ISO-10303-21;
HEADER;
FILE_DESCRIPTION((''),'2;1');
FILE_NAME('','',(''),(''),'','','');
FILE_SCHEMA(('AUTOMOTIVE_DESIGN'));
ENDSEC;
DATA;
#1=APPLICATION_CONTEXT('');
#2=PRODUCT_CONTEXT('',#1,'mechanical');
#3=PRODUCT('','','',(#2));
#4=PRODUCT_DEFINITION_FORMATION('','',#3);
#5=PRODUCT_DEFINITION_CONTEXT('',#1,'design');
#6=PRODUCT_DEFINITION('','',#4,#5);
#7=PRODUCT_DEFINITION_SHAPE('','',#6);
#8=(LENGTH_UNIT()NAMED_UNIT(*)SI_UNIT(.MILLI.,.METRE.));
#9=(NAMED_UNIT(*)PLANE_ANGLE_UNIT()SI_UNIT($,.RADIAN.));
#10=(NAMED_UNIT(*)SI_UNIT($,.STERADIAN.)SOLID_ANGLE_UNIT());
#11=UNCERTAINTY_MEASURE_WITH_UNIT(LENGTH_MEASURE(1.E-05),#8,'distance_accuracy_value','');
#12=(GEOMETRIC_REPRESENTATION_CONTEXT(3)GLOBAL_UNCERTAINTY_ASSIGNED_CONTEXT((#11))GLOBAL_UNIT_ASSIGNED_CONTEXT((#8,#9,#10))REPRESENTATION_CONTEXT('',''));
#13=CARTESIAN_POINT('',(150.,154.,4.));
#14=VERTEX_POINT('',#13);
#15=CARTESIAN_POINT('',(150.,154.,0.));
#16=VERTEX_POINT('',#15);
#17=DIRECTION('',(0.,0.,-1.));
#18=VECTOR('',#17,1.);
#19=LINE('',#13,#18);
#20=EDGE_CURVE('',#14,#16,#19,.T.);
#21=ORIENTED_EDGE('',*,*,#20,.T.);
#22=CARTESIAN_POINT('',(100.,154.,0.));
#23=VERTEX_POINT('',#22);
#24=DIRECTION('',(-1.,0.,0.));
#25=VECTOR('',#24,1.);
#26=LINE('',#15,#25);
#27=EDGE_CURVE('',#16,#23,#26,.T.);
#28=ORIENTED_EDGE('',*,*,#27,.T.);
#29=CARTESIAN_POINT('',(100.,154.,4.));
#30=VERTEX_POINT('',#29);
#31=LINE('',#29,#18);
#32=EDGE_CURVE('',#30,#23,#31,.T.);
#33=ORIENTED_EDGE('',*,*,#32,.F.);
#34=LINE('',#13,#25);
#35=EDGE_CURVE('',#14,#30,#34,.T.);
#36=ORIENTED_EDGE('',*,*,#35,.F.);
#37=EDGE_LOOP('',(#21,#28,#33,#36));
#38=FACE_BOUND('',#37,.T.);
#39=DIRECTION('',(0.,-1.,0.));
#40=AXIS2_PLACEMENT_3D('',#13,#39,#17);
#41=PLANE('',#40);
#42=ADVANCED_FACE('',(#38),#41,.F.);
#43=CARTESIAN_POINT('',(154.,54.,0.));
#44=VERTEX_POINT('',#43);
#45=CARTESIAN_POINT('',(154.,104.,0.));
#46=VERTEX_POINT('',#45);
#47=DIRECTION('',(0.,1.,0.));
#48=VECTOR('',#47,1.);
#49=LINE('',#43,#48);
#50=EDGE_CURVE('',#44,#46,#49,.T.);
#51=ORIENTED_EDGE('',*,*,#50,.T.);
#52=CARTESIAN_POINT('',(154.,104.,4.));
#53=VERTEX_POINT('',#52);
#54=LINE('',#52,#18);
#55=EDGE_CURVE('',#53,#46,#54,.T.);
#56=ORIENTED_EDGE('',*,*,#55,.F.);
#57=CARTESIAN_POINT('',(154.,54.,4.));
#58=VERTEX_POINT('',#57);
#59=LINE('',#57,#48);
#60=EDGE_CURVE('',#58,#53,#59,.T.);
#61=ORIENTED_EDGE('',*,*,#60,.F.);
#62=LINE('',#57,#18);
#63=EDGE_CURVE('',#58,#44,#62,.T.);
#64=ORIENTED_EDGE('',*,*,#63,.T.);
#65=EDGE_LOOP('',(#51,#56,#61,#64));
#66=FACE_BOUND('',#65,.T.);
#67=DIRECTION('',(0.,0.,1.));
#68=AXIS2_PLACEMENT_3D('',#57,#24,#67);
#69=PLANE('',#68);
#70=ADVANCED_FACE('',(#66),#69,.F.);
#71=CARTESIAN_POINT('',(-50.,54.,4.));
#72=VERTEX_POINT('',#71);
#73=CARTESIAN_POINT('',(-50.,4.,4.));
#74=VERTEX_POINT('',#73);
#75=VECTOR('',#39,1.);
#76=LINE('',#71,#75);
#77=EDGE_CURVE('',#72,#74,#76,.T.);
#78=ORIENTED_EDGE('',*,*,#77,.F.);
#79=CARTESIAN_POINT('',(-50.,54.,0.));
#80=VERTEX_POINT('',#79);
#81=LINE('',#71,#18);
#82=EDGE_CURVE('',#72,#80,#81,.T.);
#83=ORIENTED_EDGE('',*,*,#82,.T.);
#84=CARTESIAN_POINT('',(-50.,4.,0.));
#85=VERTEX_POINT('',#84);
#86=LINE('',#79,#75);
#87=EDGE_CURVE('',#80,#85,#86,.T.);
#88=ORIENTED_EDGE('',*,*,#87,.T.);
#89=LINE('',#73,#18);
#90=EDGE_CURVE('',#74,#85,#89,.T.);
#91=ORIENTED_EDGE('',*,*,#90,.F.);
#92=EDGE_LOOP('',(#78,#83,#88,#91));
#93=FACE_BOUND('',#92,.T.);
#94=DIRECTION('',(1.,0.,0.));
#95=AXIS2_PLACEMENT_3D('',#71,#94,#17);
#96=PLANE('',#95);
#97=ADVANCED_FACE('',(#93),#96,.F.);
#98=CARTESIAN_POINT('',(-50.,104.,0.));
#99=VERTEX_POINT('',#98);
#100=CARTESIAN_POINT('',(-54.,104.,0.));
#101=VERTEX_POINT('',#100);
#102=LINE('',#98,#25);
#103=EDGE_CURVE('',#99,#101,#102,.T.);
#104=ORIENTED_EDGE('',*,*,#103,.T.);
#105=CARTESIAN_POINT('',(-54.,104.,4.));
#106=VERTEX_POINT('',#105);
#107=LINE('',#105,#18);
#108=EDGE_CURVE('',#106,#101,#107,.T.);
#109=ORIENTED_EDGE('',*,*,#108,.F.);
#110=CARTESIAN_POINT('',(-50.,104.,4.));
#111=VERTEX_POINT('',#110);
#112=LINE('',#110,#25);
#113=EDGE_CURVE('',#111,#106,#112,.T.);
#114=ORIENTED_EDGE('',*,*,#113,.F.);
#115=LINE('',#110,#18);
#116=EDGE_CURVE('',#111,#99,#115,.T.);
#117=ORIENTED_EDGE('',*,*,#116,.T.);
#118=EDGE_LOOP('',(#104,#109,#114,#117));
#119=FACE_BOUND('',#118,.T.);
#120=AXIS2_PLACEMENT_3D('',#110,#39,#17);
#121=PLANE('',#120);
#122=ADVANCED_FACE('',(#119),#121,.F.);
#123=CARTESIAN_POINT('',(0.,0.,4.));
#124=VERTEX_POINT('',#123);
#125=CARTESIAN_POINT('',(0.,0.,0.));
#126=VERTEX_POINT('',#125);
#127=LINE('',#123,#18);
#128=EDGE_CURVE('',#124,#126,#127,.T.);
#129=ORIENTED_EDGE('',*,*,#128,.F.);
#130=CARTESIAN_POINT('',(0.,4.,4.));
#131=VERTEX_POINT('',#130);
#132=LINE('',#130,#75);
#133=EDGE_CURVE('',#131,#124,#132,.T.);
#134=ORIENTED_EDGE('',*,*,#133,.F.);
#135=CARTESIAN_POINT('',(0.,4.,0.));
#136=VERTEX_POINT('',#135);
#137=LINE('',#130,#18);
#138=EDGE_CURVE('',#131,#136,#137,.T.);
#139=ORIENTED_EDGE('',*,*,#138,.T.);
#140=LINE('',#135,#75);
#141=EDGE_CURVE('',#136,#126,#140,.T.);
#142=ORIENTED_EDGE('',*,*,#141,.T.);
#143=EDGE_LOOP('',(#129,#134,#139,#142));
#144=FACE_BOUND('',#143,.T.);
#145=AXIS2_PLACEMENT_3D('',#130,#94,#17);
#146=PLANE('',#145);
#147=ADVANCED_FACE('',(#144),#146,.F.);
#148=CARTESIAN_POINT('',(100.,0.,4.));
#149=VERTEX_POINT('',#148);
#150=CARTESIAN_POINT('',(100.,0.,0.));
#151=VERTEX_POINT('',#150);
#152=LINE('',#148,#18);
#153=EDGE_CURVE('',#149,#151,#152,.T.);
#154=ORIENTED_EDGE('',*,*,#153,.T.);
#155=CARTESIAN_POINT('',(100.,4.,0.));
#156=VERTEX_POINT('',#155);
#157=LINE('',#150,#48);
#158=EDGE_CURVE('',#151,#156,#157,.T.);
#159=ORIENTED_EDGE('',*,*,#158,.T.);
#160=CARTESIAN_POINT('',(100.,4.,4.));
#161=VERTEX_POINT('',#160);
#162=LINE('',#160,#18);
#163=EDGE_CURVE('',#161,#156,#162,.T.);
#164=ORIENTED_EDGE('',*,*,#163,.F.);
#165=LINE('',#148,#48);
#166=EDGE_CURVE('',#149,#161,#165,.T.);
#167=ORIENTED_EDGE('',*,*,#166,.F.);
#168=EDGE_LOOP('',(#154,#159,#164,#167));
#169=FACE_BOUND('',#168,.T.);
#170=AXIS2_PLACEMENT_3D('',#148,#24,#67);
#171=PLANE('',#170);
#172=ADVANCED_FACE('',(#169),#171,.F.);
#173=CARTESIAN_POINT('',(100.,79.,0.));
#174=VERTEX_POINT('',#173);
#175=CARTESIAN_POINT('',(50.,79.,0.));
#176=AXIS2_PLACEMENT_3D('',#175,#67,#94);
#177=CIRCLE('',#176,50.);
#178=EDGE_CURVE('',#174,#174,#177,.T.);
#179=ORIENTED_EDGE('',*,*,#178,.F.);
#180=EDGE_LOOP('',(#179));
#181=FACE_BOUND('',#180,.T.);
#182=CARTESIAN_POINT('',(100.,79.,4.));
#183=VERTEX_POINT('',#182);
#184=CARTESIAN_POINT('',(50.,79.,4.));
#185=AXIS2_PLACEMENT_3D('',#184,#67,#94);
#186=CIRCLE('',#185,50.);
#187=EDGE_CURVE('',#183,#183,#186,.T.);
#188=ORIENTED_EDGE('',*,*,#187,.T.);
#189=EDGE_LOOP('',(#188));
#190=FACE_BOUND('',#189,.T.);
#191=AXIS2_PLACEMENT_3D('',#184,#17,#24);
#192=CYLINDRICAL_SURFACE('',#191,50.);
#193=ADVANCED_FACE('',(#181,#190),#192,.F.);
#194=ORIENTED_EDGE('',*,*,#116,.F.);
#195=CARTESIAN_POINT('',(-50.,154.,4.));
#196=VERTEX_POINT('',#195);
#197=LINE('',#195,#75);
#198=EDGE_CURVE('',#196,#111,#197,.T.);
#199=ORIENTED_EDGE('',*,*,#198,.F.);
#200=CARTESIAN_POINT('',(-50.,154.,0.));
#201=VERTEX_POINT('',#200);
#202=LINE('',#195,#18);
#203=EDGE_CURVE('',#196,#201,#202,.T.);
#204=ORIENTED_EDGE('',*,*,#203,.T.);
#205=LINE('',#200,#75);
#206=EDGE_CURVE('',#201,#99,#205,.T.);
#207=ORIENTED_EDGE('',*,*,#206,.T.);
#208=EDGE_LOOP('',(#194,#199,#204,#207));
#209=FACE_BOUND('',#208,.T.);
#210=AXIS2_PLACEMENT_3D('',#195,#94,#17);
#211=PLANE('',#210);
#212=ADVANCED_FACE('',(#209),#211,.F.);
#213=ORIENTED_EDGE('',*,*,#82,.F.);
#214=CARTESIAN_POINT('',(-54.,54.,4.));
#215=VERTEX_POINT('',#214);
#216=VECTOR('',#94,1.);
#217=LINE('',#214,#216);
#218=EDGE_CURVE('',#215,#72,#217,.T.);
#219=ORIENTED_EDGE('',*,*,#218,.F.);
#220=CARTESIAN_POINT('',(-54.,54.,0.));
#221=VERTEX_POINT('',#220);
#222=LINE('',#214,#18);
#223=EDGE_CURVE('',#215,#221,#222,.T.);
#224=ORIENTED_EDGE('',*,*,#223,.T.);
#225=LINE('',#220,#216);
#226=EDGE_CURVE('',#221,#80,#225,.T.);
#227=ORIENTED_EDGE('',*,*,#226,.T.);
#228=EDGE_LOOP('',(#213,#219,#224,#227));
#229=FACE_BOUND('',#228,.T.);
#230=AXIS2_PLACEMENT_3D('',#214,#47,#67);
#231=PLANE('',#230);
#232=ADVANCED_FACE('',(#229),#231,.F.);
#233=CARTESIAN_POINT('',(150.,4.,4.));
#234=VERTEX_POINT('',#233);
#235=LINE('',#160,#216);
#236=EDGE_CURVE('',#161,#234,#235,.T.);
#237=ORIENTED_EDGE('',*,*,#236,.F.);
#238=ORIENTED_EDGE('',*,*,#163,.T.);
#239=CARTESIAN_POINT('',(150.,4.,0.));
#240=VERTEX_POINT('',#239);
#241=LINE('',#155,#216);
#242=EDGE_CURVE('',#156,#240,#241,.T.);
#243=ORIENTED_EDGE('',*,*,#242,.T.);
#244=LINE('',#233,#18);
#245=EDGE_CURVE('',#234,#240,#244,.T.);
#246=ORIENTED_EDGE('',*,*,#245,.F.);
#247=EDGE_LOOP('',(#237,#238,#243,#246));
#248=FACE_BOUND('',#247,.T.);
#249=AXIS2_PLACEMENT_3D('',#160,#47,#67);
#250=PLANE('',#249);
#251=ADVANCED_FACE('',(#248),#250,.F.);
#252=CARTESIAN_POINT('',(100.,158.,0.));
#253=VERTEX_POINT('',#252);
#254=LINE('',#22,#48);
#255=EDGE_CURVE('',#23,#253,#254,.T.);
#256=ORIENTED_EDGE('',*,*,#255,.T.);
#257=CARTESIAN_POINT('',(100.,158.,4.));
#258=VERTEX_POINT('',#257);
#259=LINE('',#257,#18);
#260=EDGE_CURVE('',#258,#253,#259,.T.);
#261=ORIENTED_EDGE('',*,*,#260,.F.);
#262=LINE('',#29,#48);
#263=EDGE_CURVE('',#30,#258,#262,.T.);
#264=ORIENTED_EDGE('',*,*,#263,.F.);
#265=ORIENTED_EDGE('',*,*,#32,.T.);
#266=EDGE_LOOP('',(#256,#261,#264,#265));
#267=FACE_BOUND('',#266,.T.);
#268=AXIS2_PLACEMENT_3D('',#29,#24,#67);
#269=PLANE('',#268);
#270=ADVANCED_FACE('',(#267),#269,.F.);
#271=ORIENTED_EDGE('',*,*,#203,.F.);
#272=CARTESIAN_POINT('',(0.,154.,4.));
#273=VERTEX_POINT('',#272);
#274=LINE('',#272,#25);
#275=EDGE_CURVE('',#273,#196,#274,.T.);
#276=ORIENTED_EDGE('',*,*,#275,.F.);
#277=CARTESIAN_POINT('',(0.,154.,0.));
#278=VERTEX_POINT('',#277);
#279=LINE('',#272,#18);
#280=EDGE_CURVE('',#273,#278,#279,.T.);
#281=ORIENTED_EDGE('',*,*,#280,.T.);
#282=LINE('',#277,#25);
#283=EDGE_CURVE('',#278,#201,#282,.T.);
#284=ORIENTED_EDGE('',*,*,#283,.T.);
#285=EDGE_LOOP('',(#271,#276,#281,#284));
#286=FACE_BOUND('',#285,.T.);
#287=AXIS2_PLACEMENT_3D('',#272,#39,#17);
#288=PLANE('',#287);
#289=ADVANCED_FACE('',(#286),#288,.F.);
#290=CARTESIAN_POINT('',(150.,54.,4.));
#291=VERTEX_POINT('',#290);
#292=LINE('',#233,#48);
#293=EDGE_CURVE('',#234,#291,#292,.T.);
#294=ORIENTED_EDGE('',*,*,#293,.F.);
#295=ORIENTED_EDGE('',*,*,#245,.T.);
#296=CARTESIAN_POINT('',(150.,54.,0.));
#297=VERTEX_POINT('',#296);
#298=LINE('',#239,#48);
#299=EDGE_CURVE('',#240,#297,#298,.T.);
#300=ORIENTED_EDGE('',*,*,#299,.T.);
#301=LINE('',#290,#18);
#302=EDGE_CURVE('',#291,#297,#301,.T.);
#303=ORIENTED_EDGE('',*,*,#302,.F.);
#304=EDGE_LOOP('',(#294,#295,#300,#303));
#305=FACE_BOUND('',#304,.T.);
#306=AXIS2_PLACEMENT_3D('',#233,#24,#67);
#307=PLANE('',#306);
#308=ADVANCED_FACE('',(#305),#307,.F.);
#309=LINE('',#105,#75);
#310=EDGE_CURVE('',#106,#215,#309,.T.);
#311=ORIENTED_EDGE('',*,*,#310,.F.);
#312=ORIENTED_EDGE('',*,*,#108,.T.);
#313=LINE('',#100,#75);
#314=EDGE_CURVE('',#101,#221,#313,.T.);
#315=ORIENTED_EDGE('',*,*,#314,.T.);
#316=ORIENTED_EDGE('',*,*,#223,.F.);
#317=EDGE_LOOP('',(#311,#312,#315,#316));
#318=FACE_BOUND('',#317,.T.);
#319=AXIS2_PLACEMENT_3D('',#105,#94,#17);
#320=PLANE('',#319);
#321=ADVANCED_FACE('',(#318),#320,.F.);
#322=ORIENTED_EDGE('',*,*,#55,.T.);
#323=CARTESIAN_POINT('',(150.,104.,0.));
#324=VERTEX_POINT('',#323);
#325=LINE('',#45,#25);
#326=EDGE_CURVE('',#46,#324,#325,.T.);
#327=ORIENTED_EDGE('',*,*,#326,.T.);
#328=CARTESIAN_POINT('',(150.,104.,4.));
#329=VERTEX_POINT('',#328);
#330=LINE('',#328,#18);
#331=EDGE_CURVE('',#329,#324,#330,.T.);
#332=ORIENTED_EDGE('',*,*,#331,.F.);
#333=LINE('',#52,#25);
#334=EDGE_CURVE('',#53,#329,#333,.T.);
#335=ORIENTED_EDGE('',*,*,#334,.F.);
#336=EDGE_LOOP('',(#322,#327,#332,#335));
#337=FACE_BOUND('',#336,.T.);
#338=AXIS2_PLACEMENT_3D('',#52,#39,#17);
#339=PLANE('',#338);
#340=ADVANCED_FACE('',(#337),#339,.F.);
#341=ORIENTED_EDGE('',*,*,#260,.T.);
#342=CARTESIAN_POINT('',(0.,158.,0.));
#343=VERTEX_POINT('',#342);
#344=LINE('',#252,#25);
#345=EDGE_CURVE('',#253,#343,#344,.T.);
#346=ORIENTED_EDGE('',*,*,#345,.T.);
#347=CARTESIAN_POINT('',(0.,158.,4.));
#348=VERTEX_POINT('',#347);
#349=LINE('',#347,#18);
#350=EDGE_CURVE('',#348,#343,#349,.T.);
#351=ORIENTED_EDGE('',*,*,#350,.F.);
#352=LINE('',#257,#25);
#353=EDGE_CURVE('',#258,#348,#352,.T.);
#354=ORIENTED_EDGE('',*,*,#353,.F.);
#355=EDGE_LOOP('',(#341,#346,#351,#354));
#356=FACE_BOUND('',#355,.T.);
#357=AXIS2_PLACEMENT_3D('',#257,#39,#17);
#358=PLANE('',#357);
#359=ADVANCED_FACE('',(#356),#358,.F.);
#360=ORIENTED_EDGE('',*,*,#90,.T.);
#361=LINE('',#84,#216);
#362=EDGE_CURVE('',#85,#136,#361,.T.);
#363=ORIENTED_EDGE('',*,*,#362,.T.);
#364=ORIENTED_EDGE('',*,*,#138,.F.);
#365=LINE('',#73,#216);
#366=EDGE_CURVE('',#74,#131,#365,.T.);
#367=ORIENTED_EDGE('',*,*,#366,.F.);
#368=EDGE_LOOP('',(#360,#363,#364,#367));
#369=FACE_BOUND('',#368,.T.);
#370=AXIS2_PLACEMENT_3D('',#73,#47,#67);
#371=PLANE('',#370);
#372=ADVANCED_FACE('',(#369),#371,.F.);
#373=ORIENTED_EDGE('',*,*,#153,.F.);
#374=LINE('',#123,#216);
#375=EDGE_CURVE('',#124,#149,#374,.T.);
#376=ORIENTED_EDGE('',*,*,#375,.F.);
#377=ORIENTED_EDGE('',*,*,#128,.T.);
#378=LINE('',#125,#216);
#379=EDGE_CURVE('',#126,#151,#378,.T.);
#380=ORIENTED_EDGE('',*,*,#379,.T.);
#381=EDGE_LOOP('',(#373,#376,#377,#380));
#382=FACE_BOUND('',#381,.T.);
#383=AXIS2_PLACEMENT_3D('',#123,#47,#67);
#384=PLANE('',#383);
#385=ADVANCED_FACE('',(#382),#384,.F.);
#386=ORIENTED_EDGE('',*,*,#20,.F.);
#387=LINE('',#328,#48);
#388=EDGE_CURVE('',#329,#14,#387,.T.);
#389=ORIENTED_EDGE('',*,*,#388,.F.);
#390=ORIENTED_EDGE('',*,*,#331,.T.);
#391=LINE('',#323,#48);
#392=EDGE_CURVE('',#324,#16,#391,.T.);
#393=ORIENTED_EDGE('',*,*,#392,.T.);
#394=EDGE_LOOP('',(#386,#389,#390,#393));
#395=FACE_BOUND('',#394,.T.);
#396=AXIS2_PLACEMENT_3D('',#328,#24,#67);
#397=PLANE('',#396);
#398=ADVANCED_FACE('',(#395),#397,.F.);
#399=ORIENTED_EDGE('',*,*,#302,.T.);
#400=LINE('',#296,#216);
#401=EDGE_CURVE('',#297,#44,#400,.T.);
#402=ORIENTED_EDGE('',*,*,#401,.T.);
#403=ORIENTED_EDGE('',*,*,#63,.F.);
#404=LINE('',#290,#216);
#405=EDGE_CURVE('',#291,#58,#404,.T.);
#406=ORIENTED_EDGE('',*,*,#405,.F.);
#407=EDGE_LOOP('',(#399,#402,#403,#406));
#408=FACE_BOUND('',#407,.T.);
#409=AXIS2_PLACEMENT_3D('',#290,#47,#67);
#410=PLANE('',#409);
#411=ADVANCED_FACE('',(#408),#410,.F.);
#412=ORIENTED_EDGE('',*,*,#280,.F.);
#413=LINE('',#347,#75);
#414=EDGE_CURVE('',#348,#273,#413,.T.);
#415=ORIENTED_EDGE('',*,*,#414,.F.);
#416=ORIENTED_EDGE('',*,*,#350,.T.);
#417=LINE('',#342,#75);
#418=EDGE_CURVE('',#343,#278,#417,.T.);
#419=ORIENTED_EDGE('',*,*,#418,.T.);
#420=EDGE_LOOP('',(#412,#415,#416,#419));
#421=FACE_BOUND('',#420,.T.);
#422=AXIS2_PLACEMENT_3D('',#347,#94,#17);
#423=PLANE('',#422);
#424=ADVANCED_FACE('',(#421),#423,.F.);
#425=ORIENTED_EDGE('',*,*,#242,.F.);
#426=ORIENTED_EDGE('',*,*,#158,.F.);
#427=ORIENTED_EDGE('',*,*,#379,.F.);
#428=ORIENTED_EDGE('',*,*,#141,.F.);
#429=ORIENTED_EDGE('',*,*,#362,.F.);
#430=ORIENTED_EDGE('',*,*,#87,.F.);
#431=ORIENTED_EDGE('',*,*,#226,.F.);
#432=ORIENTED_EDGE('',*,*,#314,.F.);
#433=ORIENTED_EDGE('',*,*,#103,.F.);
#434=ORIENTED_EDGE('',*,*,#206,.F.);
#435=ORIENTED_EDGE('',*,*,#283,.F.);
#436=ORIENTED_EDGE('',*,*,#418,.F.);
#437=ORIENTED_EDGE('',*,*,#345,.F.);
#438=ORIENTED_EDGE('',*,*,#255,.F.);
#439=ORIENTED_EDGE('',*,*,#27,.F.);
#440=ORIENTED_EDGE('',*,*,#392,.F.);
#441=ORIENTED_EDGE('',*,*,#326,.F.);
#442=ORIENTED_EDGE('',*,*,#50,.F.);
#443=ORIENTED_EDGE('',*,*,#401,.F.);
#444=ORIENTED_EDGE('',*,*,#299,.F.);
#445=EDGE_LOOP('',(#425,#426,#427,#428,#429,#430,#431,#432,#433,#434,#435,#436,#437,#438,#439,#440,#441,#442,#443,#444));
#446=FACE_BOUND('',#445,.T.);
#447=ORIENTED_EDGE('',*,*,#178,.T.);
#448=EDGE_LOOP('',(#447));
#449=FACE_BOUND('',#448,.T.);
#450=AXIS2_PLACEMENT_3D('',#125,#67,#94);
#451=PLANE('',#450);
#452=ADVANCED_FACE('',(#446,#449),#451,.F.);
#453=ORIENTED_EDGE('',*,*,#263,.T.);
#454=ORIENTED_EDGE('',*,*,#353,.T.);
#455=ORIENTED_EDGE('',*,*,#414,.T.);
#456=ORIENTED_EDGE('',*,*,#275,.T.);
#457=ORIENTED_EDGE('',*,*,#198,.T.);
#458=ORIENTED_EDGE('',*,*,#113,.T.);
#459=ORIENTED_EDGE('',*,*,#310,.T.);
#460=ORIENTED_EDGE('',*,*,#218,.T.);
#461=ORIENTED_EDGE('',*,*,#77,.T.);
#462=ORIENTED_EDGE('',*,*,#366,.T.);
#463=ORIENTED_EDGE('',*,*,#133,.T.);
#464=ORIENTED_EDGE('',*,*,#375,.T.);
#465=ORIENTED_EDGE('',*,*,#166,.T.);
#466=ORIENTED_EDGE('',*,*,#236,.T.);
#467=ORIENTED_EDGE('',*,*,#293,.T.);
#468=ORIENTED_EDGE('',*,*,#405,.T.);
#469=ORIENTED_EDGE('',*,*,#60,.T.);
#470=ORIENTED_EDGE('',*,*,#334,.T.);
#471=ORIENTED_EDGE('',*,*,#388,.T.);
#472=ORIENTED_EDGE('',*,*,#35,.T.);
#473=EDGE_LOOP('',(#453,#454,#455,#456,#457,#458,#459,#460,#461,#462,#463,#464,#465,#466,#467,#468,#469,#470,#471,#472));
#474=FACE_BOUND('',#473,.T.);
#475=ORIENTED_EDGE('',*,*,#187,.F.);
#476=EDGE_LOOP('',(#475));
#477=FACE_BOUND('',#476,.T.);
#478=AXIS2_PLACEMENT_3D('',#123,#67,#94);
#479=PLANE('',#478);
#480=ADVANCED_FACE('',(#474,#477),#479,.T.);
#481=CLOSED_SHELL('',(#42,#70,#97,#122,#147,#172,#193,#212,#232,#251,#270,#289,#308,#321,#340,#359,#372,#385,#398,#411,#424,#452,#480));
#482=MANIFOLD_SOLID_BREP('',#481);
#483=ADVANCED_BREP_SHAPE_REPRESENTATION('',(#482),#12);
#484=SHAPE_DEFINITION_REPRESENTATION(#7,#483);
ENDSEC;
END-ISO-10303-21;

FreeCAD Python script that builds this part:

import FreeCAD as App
import Part
import Sketcher

V = App.Vector

doc = App.newDocument("Part")
body = doc.addObject("PartDesign::Body", "Body")

# Sketch on XY plane
sketch1 = body.newObject("Sketcher::SketchObject", "Sketch")
sketch1.AttachmentSupport = (doc.getObject("XY_Plane"), [""])
sketch1.MapMode = "FlatFace"
sketch1.addGeometry([
    Part.LineSegment(V(0, 0, 0), V(100, 0, 0)),  # 0
    Part.LineSegment(V(100, 0, 0), V(100, 4, 0)),  # 1
    Part.LineSegment(V(100, 4, 0), V(150, 4, 0)),  # 2
    Part.LineSegment(V(150, 4, 0), V(150, 54, 0)),  # 3
    Part.LineSegment(V(150, 54, 0), V(154, 54, 0)),  # 4
    Part.LineSegment(V(154, 54, 0), V(154, 104, 0)),  # 5
    Part.LineSegment(V(154, 104, 0), V(150, 104, 0)),  # 6
    Part.LineSegment(V(150, 104, 0), V(150, 154, 0)),  # 7
    Part.LineSegment(V(150, 154, 0), V(100, 154, 0)),  # 8
    Part.LineSegment(V(100, 154, 0), V(100, 158, 0)),  # 9
    Part.LineSegment(V(100, 158, 0), V(0, 158, 0)),  # 10
    Part.LineSegment(V(0, 158, 0), V(0, 154, 0)),  # 11
    Part.LineSegment(V(0, 154, 0), V(-50, 154, 0)),  # 12
    Part.LineSegment(V(-50, 154, 0), V(-50, 104, 0)),  # 13
    Part.LineSegment(V(-50, 104, 0), V(-54, 104, 0)),  # 14
    Part.LineSegment(V(-54, 104, 0), V(-54, 54, 0)),  # 15
    Part.LineSegment(V(-54, 54, 0), V(-50, 54, 0)),  # 16
    Part.LineSegment(V(-50, 54, 0), V(-50, 4, 0)),  # 17
    Part.LineSegment(V(-50, 4, 0), V(0, 4, 0)),  # 18
    Part.LineSegment(V(0, 4, 0), V(0, 0, 0)),  # 19
    Part.Circle(V(50, 79, 0), V(0, 0, 1), 50),  # 20
], False)
sketch1.addConstraint([
    Sketcher.Constraint("Coincident", 0, 2, 1, 1),
    Sketcher.Constraint("Coincident", 1, 2, 2, 1),
    Sketcher.Constraint("Coincident", 2, 2, 3, 1),
    Sketcher.Constraint("Coincident", 3, 2, 4, 1),
    Sketcher.Constraint("Coincident", 4, 2, 5, 1),
    Sketcher.Constraint("Coincident", 5, 2, 6, 1),
    Sketcher.Constraint("Coincident", 6, 2, 7, 1),
    Sketcher.Constraint("Coincident", 7, 2, 8, 1),
    Sketcher.Constraint("Coincident", 8, 2, 9, 1),
    Sketcher.Constraint("Coincident", 9, 2, 10, 1),
    Sketcher.Constraint("Coincident", 10, 2, 11, 1),
    Sketcher.Constraint("Coincident", 11, 2, 12, 1),
    Sketcher.Constraint("Coincident", 12, 2, 13, 1),
    Sketcher.Constraint("Coincident", 13, 2, 14, 1),
    Sketcher.Constraint("Coincident", 14, 2, 15, 1),
    Sketcher.Constraint("Coincident", 15, 2, 16, 1),
    Sketcher.Constraint("Coincident", 16, 2, 17, 1),
    Sketcher.Constraint("Coincident", 17, 2, 18, 1),
    Sketcher.Constraint("Coincident", 18, 2, 19, 1),
    Sketcher.Constraint("Coincident", 19, 2, 0, 1),
    Sketcher.Constraint("Horizontal", 0),
    Sketcher.Constraint("Vertical", 1),
    Sketcher.Constraint("Horizontal", 2),
    Sketcher.Constraint("Vertical", 3),
    Sketcher.Constraint("Horizontal", 4),
    Sketcher.Constraint("Vertical", 5),
    Sketcher.Constraint("Horizontal", 6),
    Sketcher.Constraint("Vertical", 7),
    Sketcher.Constraint("Horizontal", 8),
    Sketcher.Constraint("Vertical", 9),
    Sketcher.Constraint("Horizontal", 10),
    Sketcher.Constraint("Vertical", 11),
    Sketcher.Constraint("Horizontal", 12),
    Sketcher.Constraint("Vertical", 13),
    Sketcher.Constraint("Horizontal", 14),
    Sketcher.Constraint("Vertical", 15),
    Sketcher.Constraint("Horizontal", 16),
    Sketcher.Constraint("Vertical", 17),
    Sketcher.Constraint("Horizontal", 18),
    Sketcher.Constraint("Vertical", 19),
    Sketcher.Constraint("Coincident", 19, 2, -1, 1),
    Sketcher.Constraint("PointOnObject", 10, 2, -2),
    Sketcher.Constraint("Horizontal", 8, 2, 11, 2),
    Sketcher.Constraint("Horizontal", 6, 2, 13, 2),
    Sketcher.Constraint("Horizontal", 4, 2, 15, 2),
    Sketcher.Constraint("Horizontal", 2, 2, 17, 2),
    Sketcher.Constraint("Vertical", 3, 2, 6, 2),
    Sketcher.Constraint("Vertical", 1, 2, 8, 2),
    Sketcher.Constraint("Vertical", 13, 2, 16, 2),
    Sketcher.Constraint("Equal", 8, 12),
    Sketcher.Constraint("Equal", 6, 14),
    Sketcher.Constraint("Equal", 16, 1),
    Sketcher.Constraint("Equal", 18, 3),
    Sketcher.Constraint("Equal", 3, 5),
    Sketcher.Constraint("Equal", 5, 7),
    Sketcher.Constraint("Equal", 1, 9),
    Sketcher.Constraint("Diameter", 20, 100.0),
    Sketcher.Constraint("DistanceX", 0, 1, 0, 2, 100.0),
    Sketcher.Constraint("DistanceX", 2, 1, 2, 2, 50.0),
    Sketcher.Constraint("DistanceX", 4, 1, 4, 2, 4.0),
    Sketcher.Constraint("DistanceX", -1, 1, 20, 3, 50.0),
    Sketcher.Constraint("DistanceY", -1, 1, 20, 3, 79.0),
])
pad1 = body.newObject("PartDesign::Pad", "Pad")
pad1.Profile = sketch1
pad1.Length = 4

doc.recompute()
